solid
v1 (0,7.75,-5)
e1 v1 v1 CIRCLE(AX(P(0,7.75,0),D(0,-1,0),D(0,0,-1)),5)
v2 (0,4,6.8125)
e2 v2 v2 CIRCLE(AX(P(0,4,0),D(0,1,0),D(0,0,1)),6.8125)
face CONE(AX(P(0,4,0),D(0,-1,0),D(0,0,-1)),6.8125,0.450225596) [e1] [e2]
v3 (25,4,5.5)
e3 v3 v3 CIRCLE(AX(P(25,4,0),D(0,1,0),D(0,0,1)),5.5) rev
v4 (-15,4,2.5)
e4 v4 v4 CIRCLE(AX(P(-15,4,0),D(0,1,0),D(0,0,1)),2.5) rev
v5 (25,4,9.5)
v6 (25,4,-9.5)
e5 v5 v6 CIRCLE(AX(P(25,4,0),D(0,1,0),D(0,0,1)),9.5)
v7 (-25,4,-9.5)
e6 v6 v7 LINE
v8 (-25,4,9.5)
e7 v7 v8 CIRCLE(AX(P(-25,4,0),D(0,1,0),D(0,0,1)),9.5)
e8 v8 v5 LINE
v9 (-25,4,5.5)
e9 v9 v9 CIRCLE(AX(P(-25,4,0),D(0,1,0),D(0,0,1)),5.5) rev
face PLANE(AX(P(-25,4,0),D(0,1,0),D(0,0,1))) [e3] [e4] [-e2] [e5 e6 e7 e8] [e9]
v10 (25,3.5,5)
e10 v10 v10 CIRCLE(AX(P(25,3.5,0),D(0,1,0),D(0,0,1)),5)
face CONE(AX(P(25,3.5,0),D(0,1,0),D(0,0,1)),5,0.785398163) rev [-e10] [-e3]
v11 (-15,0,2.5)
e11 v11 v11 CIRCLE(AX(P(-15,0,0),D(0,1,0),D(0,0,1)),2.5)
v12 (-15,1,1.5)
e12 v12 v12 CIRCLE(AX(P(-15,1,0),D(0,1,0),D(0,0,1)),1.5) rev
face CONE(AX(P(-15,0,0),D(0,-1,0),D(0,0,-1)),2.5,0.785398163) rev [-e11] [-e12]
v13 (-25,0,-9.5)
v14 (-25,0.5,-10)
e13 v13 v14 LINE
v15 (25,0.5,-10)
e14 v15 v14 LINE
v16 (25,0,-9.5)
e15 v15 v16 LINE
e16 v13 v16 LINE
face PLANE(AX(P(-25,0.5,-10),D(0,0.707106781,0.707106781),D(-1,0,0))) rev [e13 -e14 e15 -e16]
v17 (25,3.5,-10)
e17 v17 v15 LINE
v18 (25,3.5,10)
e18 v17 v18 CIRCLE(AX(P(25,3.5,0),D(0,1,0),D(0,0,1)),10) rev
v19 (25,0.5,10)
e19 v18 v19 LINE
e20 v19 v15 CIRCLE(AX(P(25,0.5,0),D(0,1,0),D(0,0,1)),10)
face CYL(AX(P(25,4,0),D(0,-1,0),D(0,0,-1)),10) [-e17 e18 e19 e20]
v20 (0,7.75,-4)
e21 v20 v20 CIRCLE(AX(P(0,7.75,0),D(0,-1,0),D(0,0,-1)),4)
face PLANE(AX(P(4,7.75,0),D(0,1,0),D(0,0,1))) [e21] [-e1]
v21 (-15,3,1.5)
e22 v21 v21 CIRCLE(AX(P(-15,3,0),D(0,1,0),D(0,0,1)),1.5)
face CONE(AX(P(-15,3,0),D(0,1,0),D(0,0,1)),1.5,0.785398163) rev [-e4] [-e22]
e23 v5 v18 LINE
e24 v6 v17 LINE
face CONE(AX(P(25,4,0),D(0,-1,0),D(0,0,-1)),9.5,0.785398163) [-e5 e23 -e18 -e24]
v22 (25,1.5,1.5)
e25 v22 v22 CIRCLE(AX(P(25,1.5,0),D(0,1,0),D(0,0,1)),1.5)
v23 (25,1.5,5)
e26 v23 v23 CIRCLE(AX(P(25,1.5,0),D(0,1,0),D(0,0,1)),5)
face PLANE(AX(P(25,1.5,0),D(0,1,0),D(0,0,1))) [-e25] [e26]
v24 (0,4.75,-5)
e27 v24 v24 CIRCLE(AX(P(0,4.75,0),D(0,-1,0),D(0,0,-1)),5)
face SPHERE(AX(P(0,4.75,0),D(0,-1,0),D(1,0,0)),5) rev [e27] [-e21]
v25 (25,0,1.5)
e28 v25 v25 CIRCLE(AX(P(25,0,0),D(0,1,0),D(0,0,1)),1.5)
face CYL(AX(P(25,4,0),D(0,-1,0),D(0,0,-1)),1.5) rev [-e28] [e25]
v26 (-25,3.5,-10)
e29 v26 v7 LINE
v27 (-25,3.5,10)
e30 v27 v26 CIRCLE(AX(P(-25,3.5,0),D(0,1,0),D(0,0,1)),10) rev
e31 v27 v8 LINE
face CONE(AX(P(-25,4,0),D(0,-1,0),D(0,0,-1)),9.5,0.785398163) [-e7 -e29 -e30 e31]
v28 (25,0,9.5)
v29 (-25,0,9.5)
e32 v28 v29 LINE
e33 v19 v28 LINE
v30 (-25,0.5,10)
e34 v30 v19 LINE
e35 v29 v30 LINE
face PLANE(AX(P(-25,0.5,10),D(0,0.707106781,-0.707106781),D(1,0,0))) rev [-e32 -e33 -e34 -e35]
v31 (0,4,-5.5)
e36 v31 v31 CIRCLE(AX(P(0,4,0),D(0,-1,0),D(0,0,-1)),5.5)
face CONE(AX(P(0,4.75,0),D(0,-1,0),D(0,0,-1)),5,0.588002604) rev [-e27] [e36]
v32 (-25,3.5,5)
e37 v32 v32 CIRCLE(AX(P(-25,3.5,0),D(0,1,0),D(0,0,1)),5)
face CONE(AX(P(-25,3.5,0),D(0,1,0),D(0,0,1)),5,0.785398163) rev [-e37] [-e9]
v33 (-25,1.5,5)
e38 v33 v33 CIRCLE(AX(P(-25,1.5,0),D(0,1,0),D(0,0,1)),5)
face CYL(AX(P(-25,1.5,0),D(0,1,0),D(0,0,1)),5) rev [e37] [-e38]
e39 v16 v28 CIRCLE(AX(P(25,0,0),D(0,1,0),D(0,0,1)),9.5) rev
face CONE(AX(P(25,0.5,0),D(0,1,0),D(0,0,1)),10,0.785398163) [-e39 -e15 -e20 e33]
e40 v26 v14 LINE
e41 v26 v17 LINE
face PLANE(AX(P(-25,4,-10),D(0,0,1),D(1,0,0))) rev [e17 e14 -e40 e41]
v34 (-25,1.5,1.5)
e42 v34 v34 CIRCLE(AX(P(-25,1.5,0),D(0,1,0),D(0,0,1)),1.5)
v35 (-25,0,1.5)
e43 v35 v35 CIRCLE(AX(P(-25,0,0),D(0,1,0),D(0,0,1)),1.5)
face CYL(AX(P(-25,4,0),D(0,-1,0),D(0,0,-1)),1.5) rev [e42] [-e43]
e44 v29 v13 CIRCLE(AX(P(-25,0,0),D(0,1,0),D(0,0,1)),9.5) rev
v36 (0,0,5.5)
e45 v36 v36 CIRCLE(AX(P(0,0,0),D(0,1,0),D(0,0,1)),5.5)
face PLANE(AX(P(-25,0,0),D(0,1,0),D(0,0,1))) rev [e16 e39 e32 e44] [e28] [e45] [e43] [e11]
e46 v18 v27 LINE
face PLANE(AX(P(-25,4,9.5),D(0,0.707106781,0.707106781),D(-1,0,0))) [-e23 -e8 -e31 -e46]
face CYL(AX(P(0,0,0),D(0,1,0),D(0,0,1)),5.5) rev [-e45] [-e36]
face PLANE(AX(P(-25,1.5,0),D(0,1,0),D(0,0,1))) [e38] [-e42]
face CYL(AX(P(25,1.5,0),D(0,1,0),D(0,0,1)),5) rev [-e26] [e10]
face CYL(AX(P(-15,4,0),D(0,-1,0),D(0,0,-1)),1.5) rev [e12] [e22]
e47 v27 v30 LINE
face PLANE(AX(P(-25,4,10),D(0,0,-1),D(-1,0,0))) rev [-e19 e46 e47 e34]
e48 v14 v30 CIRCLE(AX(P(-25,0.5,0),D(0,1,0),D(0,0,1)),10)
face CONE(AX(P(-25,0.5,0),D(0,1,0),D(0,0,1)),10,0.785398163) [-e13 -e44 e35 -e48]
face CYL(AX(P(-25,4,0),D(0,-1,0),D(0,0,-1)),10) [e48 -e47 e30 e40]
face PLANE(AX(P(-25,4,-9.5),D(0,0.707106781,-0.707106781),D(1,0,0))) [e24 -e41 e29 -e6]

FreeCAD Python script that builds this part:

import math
import FreeCAD as App
import Part
import Sketcher


def edges_at(feature, points):
    """Names of the edges that pass closest to the given points."""
    edges = feature.Shape.Edges
    near = lambda p: min(range(len(edges)), key=lambda i: edges[i].distToShape(Part.Vertex(*p))[0])
    return sorted({f"Edge{near(p) + 1}" for p in points})

doc = App.newDocument("Part")
body = doc.addObject("PartDesign::Body", "Body")

sketch1 = body.newObject("Sketcher::SketchObject", "Sketch")
sketch1.AttachmentSupport = (doc.getObject("XZ_Plane"), [""])
sketch1.MapMode = "FlatFace"
sketch1.addGeometry(Part.LineSegment(App.Vector(25, -10, 0), App.Vector(-25, -10, 0)), False)
sketch1.addGeometry(Part.ArcOfCircle(Part.Circle(App.Vector(-25, 0, 0), App.Vector(0, 0, 1), 10), math.radians(90), math.radians(270)), False)
sketch1.addGeometry(Part.LineSegment(App.Vector(-25, 10, 0), App.Vector(25, 10, 0)), False)
sketch1.addGeometry(Part.ArcOfCircle(Part.Circle(App.Vector(25, 0, 0), App.Vector(0, 0, 1), 10), math.radians(-90), math.radians(90)), False)
sketch1.addGeometry(Part.Circle(App.Vector(25, 0, 0), App.Vector(0, 0, 1), 1.5), False)
sketch1.addGeometry(Part.Circle(App.Vector(-15, 0, 0), App.Vector(0, 0, 1), 1.5), False)
sketch1.addGeometry(Part.Circle(App.Vector(-25, 0, 0), App.Vector(0, 0, 1), 1.5), False)
sketch1.addConstraint(Sketcher.Constraint("Tangent", 0, 2, 1, 2))
sketch1.addConstraint(Sketcher.Constraint("Tangent", 1, 1, 2, 1))
sketch1.addConstraint(Sketcher.Constraint("Tangent", 2, 2, 3, 2))
sketch1.addConstraint(Sketcher.Constraint("Tangent", 3, 1, 0, 1))
sketch1.addConstraint(Sketcher.Constraint("Horizontal", 0))
sketch1.addConstraint(Sketcher.Constraint("Horizontal", 2))
sketch1.addConstraint(Sketcher.Constraint("Coincident", 4, 3, 3, 3))
sketch1.addConstraint(Sketcher.Constraint("Coincident", 6, 3, 1, 3))
sketch1.addConstraint(Sketcher.Constraint("Equal", 4, 5))
sketch1.addConstraint(Sketcher.Constraint("Equal", 5, 6))
sketch1.addConstraint(Sketcher.Constraint("Symmetric", 1, 3, 3, 3, -1, 1))
sketch1.addConstraint(Sketcher.Constraint("PointOnObject", 5, 3, -1))
sketch1.addConstraint(Sketcher.Constraint("Diameter", 4, 3.0))
sketch1.addConstraint(Sketcher.Constraint("Radius", 1, 10.0))
sketch1.addConstraint(Sketcher.Constraint("DistanceX", 0, 2, 0, 1, 50.0))
sketch1.addConstraint(Sketcher.Constraint("DistanceX", 5, 3, -1, 1, 15.0))
pad1 = body.newObject("PartDesign::Pad", "Pad")
pad1.Profile = sketch1
pad1.Length = 4
pad1.Reversed = True

sketch2 = body.newObject("Sketcher::SketchObject", "Sketch001")
sketch2.AttachmentSupport = (doc.getObject("XZ_Plane"), [""])
sketch2.MapMode = "FlatFace"
sketch2.AttachmentOffset = App.Placement(App.Vector(0, 0, -4), App.Rotation())
sketch2.addGeometry(Part.Circle(App.Vector(-25, 0, 0), App.Vector(0, 0, 1), 5), False)
sketch2.addGeometry(Part.Circle(App.Vector(25, 0, 0), App.Vector(0, 0, 1), 5), False)
sketch2.addConstraint(Sketcher.Constraint("Equal", 0, 1))
sketch2.addConstraint(Sketcher.Constraint("Symmetric", 0, 3, 1, 3, -1, 1))
sketch2.addConstraint(Sketcher.Constraint("PointOnObject", 0, 3, -1))
sketch2.addConstraint(Sketcher.Constraint("Diameter", 0, 10.0))
sketch2.addConstraint(Sketcher.Constraint("DistanceX", 0, 3, -1, 1, 25.0))
pocket1 = body.newObject("PartDesign::Pocket", "Pocket")
pocket1.Profile = sketch2
pocket1.Length = 2.5
pocket1.Reversed = True

sketch3 = body.newObject("Sketcher::SketchObject", "Sketch002")
sketch3.AttachmentSupport = (doc.getObject("XZ_Plane"), [""])
sketch3.MapMode = "FlatFace"
sketch3.AttachmentOffset = App.Placement(App.Vector(0, 0, -4), App.Rotation())
sketch3.addGeometry(Part.Circle(App.Vector(0, 0, 0), App.Vector(0, 0, 1), 6), False)
sketch3.addConstraint(Sketcher.Constraint("Coincident", 0, 3, -1, 1))
sketch3.addConstraint(Sketcher.Constraint("Diameter", 0, 11.0))
pocket2 = body.newObject("PartDesign::Pocket", "Pocket001")
pocket2.Profile = sketch3
pocket2.Type = "ThroughAll"
pocket2.Reversed = True

sketch4 = body.newObject("Sketcher::SketchObject", "Sketch003")
sketch4.AttachmentSupport = (doc.getObject("XY_Plane"), [""])
sketch4.MapMode = "FlatFace"
sketch4.addGeometry(Part.LineSegment(App.Vector(5, 4.8, 0), App.Vector(5.5, 4, 0)), False)
sketch4.addGeometry(Part.LineSegment(App.Vector(5.5, 4, 0), App.Vector(6.8, 4, 0)), False)
sketch4.addGeometry(Part.LineSegment(App.Vector(6.8, 4, 0), App.Vector(5, 7.8, 0)), False)
sketch4.addGeometry(Part.LineSegment(App.Vector(5, 7.8, 0), App.Vector(4, 7.8, 0)), False)
sketch4.addGeometry(Part.ArcOfCircle(Part.Circle(App.Vector(0, 4.7, 0), App.Vector(0, 0, 1), 5), math.radians(0), math.radians(37)), False)
sketch4.addConstraint(Sketcher.Constraint("Coincident", 0, 2, 1, 1))
sketch4.addConstraint(Sketcher.Constraint("Coincident", 1, 2, 2, 1))
sketch4.addConstraint(Sketcher.Constraint("Coincident", 2, 2, 3, 1))
sketch4.addConstraint(Sketcher.Constraint("Coincident", 3, 2, 4, 2))
sketch4.addConstraint(Sketcher.Constraint("Coincident", 4, 1, 0, 1))
sketch4.addConstraint(Sketcher.Constraint("Horizontal", 1))
sketch4.addConstraint(Sketcher.Constraint("Horizontal", 3))
sketch4.addConstraint(Sketcher.Constraint("PointOnObject", 4, 3, -2))
sketch4.addConstraint(Sketcher.Constraint("Vertical", 2, 2, 4, 1))
sketch4.addConstraint(Sketcher.Constraint("Radius", 4, 5.0))
sketch4.addConstraint(Sketcher.Constraint("DistanceX", 3, 2, 3, 1, 1.0))
sketch4.addConstraint(Sketcher.Constraint("DistanceY", -1, 1, 0, 2, 4.0))
sketch4.addConstraint(Sketcher.Constraint("DistanceY", 4, 1, 2, 2, 3.0))
sketch4.addConstraint(Sketcher.Constraint("DistanceX", -1, 1, 0, 2, 5.5))
sketch4.addConstraint(Sketcher.Constraint("DistanceY", -1, 1, 4, 3, 4.75))
sketch4.addConstraint(Sketcher.Constraint("DistanceX", 1, 1, 1, 2, 1.3125))
revolution = body.newObject("PartDesign::Revolution", "Revolution")
revolution.Profile = sketch4
revolution.ReferenceAxis = (sketch4, ["V_Axis"])
revolution.Angle = 360
doc.recompute()

chamfer = body.newObject("PartDesign::Chamfer", "Chamfer")
chamfer.Base = (revolution, edges_at(revolution, [(-15, 0, -1.5), (-15, 4, -1.5)]))
chamfer.Size = 1
doc.recompute()

chamfer2 = body.newObject("PartDesign::Chamfer", "Chamfer001")
chamfer2.Base = (chamfer, edges_at(chamfer, [
    (35, 4, 0),
    (0, 4, -10),
    (-25, 4, -5),
    (25, 4, -5),
    (-35, 4, 0),
    (0, 0, -10),
    (35, 0, 0),
    (0, 0, 10),
    (-35, 0, 0),
    (0, 4, 10),
]))
chamfer2.Size = 0.5

doc.recompute()
